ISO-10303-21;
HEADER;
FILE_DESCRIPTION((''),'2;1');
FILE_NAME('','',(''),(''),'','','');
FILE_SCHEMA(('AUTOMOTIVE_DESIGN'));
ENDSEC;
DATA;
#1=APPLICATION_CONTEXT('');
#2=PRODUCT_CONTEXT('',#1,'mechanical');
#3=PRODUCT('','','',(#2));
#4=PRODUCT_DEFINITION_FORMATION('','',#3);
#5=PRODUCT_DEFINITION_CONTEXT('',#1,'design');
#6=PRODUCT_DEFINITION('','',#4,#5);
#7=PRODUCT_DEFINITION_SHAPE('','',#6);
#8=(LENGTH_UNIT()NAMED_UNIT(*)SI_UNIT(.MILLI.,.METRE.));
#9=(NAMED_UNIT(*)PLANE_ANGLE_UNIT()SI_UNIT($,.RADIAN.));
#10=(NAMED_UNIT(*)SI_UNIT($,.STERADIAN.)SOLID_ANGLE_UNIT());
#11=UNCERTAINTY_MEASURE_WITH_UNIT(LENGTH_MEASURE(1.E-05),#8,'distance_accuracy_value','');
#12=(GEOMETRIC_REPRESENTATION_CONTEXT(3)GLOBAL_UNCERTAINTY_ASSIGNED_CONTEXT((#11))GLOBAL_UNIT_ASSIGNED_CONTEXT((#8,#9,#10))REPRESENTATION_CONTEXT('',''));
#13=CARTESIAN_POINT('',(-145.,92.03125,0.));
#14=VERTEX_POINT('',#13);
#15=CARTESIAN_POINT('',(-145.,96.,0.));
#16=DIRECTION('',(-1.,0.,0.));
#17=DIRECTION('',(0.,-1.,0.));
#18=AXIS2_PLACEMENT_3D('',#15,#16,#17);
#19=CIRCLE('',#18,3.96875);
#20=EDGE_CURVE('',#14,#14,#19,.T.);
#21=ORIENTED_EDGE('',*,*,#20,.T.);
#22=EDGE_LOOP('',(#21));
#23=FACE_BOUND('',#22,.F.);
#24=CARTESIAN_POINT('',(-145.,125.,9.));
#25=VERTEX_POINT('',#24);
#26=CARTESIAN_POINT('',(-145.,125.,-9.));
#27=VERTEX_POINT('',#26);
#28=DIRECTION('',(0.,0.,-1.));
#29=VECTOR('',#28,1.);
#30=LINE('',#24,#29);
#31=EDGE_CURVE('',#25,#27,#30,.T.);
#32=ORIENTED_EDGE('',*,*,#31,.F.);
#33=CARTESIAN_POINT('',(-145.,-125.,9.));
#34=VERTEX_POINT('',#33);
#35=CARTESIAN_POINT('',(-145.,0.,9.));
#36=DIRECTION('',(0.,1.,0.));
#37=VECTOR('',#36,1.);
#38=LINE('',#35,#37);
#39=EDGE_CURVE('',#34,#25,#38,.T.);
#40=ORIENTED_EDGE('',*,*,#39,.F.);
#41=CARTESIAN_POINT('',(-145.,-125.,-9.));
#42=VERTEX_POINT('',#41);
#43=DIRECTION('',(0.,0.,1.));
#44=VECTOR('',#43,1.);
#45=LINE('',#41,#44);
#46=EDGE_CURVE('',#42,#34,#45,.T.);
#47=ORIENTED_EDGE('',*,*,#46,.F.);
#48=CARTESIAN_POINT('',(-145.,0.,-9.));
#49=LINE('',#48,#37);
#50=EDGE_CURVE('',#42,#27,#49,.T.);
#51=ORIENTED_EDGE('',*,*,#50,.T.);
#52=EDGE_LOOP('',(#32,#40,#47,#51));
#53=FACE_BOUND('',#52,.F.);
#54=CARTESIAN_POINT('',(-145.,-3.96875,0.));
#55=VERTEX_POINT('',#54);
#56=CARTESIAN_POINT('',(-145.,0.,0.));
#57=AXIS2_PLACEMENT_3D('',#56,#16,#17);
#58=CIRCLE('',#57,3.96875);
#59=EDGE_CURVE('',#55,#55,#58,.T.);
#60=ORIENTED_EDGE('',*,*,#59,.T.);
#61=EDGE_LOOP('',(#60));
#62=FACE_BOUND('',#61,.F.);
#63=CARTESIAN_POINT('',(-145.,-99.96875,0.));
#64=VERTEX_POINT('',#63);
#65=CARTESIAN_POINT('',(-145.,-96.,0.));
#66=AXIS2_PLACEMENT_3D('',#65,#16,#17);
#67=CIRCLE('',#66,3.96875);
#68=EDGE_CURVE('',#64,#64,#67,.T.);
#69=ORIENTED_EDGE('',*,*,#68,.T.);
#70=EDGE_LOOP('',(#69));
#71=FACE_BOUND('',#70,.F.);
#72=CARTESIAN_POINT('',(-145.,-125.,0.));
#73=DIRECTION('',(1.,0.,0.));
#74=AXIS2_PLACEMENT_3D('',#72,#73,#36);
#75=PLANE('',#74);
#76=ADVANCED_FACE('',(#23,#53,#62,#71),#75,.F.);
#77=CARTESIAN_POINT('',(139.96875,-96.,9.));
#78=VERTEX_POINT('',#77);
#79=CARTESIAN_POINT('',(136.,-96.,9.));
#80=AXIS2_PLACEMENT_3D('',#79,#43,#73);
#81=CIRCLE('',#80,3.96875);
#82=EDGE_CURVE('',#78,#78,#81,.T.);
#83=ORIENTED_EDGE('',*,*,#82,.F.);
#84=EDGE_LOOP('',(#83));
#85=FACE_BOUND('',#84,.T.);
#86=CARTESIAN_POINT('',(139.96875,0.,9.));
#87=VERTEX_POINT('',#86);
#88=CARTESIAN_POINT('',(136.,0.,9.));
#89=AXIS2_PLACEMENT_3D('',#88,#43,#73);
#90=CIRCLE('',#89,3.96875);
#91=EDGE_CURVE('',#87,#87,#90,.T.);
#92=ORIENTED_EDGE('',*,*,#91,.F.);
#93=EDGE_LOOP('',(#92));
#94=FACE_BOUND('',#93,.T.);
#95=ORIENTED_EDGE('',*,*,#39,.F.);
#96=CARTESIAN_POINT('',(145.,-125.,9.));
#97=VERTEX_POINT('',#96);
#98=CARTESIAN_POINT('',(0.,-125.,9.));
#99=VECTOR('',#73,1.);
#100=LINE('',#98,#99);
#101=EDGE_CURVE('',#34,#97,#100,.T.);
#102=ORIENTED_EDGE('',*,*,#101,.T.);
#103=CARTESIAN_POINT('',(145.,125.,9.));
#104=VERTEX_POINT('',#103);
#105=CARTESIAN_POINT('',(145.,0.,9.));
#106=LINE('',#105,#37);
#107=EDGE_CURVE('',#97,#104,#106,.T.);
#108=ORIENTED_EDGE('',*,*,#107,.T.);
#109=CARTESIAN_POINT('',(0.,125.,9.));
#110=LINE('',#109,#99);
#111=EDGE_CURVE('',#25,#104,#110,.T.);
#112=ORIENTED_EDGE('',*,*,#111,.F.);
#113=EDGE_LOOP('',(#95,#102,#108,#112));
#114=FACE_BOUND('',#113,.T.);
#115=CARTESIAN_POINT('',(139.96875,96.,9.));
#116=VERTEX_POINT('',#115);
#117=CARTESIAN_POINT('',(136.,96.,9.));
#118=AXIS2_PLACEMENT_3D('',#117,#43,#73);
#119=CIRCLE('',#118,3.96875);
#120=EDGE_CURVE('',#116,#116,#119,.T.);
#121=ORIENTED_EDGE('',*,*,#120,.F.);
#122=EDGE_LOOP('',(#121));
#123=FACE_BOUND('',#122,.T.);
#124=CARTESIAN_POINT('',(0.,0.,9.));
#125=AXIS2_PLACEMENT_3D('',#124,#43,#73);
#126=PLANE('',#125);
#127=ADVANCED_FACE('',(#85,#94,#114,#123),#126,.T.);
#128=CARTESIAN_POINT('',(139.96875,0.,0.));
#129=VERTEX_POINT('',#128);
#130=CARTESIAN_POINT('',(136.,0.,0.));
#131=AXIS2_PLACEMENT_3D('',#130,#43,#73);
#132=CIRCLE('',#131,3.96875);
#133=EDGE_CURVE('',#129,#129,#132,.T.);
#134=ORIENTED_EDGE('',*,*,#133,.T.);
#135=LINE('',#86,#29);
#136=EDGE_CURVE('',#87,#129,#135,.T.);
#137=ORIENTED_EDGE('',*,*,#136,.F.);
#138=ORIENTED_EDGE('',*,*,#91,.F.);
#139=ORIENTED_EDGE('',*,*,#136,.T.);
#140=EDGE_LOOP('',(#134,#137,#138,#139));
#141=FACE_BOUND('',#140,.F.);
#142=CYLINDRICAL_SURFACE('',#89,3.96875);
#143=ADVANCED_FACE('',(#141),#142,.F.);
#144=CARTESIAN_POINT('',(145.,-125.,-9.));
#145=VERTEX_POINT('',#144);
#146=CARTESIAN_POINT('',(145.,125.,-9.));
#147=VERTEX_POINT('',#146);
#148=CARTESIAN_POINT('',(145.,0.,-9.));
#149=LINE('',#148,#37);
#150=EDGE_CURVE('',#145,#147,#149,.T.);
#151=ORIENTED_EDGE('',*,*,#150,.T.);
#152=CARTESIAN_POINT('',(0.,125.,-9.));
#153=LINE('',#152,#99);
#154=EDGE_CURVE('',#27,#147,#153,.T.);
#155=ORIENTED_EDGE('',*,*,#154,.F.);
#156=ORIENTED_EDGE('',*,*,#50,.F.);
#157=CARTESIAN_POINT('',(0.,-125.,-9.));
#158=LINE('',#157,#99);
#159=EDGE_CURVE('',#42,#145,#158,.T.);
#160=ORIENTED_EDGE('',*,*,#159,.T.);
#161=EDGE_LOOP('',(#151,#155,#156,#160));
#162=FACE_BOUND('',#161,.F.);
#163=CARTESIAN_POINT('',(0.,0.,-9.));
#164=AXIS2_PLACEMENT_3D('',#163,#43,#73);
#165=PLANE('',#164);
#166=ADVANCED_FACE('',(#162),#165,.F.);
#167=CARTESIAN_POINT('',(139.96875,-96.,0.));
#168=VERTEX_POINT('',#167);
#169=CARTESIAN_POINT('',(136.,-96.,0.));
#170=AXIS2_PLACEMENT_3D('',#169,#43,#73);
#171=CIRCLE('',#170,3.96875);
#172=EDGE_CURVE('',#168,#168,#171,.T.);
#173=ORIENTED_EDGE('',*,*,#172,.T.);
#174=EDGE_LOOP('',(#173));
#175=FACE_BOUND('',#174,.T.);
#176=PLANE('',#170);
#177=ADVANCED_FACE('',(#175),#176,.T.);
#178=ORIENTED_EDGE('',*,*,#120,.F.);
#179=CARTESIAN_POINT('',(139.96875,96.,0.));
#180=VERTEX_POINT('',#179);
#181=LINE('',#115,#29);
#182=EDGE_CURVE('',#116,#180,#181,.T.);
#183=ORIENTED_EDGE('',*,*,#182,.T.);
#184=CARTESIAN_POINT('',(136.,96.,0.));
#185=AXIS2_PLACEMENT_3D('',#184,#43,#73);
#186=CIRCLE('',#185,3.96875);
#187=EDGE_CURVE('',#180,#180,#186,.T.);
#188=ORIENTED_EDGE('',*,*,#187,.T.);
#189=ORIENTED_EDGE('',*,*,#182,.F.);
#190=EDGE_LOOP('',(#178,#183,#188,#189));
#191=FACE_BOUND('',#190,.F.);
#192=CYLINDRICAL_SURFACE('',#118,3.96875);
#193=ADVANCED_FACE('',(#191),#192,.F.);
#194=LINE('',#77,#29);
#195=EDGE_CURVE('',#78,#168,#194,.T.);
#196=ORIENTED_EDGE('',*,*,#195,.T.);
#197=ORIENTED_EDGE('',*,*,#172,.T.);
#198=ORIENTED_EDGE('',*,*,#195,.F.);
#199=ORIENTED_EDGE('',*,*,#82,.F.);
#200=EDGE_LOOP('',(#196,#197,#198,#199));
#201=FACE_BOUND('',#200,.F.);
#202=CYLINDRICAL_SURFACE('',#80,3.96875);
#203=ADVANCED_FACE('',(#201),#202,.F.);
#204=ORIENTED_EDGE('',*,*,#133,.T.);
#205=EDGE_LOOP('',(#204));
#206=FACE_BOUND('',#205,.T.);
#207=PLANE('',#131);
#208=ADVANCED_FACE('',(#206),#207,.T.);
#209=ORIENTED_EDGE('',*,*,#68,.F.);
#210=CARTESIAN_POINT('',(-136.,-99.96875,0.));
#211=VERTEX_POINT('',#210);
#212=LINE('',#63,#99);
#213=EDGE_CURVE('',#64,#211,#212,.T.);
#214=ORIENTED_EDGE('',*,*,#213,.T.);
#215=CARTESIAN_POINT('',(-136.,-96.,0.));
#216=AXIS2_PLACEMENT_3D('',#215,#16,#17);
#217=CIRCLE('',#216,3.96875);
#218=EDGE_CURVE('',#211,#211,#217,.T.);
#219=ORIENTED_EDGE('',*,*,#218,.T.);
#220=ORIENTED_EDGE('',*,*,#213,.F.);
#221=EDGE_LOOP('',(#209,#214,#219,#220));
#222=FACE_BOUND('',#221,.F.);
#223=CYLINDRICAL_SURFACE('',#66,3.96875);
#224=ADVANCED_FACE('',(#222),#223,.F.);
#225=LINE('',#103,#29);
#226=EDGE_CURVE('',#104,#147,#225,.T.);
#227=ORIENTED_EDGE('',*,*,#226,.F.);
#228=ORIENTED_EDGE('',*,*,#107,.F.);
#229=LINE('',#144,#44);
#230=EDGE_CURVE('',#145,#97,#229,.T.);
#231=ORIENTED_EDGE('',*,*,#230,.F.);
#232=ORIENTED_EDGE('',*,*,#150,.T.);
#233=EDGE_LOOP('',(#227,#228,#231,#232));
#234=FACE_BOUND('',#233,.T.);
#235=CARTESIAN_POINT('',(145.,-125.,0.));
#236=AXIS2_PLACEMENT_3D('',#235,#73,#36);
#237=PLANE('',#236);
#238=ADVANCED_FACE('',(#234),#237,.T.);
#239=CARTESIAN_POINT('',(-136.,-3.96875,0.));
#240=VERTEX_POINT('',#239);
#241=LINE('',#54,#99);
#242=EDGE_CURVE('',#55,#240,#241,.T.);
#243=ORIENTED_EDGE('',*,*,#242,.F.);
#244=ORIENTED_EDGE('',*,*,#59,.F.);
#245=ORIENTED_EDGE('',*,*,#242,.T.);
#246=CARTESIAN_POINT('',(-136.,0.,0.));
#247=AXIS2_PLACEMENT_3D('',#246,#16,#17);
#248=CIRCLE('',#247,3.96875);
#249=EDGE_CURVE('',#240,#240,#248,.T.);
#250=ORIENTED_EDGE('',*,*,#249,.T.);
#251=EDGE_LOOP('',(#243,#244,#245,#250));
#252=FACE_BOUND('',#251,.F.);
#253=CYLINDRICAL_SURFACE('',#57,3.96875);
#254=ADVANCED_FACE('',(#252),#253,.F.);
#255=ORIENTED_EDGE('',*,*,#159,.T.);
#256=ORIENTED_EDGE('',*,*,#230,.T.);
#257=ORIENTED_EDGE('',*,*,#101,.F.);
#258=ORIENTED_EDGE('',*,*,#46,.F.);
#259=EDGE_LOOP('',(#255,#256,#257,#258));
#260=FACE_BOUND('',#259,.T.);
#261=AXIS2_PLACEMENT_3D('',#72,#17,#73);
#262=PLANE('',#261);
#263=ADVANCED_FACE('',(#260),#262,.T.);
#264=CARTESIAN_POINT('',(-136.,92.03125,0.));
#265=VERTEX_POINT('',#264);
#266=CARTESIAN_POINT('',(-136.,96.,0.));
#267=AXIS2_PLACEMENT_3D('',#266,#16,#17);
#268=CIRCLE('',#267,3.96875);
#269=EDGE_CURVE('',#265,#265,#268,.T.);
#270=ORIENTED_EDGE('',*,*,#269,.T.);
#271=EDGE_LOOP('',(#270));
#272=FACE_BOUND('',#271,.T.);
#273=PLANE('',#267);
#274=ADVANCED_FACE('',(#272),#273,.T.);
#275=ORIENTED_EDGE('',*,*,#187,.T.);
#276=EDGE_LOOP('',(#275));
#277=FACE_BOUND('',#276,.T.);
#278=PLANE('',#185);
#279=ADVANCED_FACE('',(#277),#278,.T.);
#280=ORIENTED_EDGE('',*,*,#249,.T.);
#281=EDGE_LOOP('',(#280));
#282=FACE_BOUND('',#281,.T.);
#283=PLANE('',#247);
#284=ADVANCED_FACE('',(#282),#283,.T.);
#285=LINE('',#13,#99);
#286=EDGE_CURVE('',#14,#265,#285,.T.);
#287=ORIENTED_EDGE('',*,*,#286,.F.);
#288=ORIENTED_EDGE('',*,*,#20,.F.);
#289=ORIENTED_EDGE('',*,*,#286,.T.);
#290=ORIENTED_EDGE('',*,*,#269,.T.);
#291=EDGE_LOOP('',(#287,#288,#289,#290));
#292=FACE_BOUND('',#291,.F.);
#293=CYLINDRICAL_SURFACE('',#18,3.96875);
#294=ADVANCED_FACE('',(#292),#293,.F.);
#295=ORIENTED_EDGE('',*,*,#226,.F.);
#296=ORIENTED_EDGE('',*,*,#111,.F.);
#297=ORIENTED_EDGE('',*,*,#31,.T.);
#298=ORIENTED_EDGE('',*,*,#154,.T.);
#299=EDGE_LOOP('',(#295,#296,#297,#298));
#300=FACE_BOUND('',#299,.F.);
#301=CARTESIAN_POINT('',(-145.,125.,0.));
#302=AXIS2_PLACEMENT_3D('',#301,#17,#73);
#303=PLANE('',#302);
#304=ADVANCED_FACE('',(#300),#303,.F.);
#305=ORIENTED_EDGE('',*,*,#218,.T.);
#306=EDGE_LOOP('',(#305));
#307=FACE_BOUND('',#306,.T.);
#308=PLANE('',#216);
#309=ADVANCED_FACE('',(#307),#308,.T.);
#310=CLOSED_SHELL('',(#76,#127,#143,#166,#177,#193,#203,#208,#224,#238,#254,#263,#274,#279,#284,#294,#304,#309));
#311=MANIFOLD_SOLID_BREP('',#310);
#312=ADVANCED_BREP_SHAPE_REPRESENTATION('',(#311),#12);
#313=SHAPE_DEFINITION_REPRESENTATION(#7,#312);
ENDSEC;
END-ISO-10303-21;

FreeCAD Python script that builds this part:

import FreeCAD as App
import Part
import Sketcher
from FreeCAD import Vector
Q = App.Units.Quantity


def add_polygon(sketch, points):
    """Adds a closed chain of lines whose ends are joined by coincident constraints."""
    first, n = sketch.GeometryCount, len(points)
    for a, b in zip(points, points[1:] + points[:1]):
        sketch.addGeometry(Part.LineSegment(App.Vector(*a, 0), App.Vector(*b, 0)), False)
    for i in range(n):
        sketch.addConstraint(Sketcher.Constraint("Coincident", first + i, 2, first + (i + 1) % n, 1))

doc = App.newDocument("Part")
params = doc.addObject("Spreadsheet::Sheet", "Params")
for row, (alias, value) in enumerate([
    ("sketch1_width", "290 mm"),
    ("sketch1_height", "250 mm"),
    ("pad1_length", "18 mm"),
    ("pocket1_length", "9 mm"),
    ("pocket2_length", "9 mm"),
], start=1):
    params.set(f"A{row}", alias)
    params.set(f"B{row}", "=" + value)
    params.setAlias(f"B{row}", alias)

body = doc.addObject("PartDesign::Body", "Body")

sketch1 = body.newObject("Sketcher::SketchObject", "Sketch")
sketch1.AttachmentSupport = (doc.getObject("XY_Plane"), [""])
sketch1.MapMode = "FlatFace"
add_polygon(sketch1, [(-145, 125), (-145, -125), (145, -125), (145, 125)])
sketch1.addConstraint([
    Sketcher.Constraint("Vertical", 0),
    Sketcher.Constraint("Horizontal", 1),
    Sketcher.Constraint("Vertical", 2),
    Sketcher.Constraint("Horizontal", 3),
    Sketcher.Constraint("Symmetric", 0, 2, 2, 2, -1, 1),
    Sketcher.Constraint("DistanceX", 1, 1, 1, 2, Q("290 mm")),
    Sketcher.Constraint("DistanceY", 0, 2, 0, 1, Q("250 mm")),
])
sketch1.setExpression("Constraints[9]", "Params.sketch1_width")
sketch1.setExpression("Constraints[10]", "Params.sketch1_height")
pad1 = body.newObject("PartDesign::Pad", "Pad")
pad1.Profile = sketch1
pad1.setExpression("Length", "Params.pad1_length")
pad1.Midplane = True

sketch2 = body.newObject("Sketcher::SketchObject", "Sketch001")
sketch2.AttachmentSupport = (doc.getObject("XY_Plane"), [""])
sketch2.MapMode = "FlatFace"
sketch2.AttachmentOffset = App.Placement(Vector(0, 0, 9), App.Rotation())
sketch2.addGeometry([
    Part.Circle(Vector(136, 0, 0), Vector(0, 0, 1), 3.96875),
    Part.Circle(Vector(136, 96, 0), Vector(0, 0, 1), 3.96875),
    Part.Circle(Vector(136, -96, 0), Vector(0, 0, 1), 3.96875),
], False)
sketch2.addConstraint([
    Sketcher.Constraint("Equal", 0, 1),
    Sketcher.Constraint("Equal", 1, 2),
    Sketcher.Constraint("Symmetric", 1, 3, 2, 3, -1),
    Sketcher.Constraint("PointOnObject", 0, 3, -1),
    Sketcher.Constraint("Vertical", 0, 3, 1, 3),
    Sketcher.Constraint("DistanceX", -1, 1, 0, 3, Q("136 mm")),
    Sketcher.Constraint("DistanceY", -1, 1, 1, 3, Q("96 mm")),
    Sketcher.Constraint("Diameter", 0, Q("7.9375 mm")),
])
pocket1 = body.newObject("PartDesign::Pocket", "Pocket")
pocket1.Profile = sketch2
pocket1.setExpression("Length", "Params.pocket1_length")

sketch3 = body.newObject("Sketcher::SketchObject", "Sketch002")
sketch3.AttachmentSupport = (doc.getObject("YZ_Plane"), [""])
sketch3.MapMode = "FlatFace"
sketch3.AttachmentOffset = App.Placement(Vector(0, 0, -145), App.Rotation())
sketch3.addGeometry([
    Part.Circle(Vector(0, 0, 0), Vector(0, 0, 1), 3.96875),
    Part.Circle(Vector(-96, 0, 0), Vector(0, 0, 1), 3.96875),
    Part.Circle(Vector(96, 0, 0), Vector(0, 0, 1), 3.96875),
], False)
sketch3.addConstraint([
    Sketcher.Constraint("Coincident", 0, 3, -1, 1),
    Sketcher.Constraint("Equal", 0, 1),
    Sketcher.Constraint("Equal", 1, 2),
    Sketcher.Constraint("Symmetric", 1, 3, 2, 3, -1, 1),
    Sketcher.Constraint("PointOnObject", 1, 3, -1),
    Sketcher.Constraint("DistanceX", 1, 3, -1, 1, Q("96 mm")),
    Sketcher.Constraint("Diameter", 0, Q("7.9375 mm")),
])
pocket2 = body.newObject("PartDesign::Pocket", "Pocket001")
pocket2.Profile = sketch3
pocket2.setExpression("Length", "Params.pocket2_length")
pocket2.Reversed = True

doc.recompute()
